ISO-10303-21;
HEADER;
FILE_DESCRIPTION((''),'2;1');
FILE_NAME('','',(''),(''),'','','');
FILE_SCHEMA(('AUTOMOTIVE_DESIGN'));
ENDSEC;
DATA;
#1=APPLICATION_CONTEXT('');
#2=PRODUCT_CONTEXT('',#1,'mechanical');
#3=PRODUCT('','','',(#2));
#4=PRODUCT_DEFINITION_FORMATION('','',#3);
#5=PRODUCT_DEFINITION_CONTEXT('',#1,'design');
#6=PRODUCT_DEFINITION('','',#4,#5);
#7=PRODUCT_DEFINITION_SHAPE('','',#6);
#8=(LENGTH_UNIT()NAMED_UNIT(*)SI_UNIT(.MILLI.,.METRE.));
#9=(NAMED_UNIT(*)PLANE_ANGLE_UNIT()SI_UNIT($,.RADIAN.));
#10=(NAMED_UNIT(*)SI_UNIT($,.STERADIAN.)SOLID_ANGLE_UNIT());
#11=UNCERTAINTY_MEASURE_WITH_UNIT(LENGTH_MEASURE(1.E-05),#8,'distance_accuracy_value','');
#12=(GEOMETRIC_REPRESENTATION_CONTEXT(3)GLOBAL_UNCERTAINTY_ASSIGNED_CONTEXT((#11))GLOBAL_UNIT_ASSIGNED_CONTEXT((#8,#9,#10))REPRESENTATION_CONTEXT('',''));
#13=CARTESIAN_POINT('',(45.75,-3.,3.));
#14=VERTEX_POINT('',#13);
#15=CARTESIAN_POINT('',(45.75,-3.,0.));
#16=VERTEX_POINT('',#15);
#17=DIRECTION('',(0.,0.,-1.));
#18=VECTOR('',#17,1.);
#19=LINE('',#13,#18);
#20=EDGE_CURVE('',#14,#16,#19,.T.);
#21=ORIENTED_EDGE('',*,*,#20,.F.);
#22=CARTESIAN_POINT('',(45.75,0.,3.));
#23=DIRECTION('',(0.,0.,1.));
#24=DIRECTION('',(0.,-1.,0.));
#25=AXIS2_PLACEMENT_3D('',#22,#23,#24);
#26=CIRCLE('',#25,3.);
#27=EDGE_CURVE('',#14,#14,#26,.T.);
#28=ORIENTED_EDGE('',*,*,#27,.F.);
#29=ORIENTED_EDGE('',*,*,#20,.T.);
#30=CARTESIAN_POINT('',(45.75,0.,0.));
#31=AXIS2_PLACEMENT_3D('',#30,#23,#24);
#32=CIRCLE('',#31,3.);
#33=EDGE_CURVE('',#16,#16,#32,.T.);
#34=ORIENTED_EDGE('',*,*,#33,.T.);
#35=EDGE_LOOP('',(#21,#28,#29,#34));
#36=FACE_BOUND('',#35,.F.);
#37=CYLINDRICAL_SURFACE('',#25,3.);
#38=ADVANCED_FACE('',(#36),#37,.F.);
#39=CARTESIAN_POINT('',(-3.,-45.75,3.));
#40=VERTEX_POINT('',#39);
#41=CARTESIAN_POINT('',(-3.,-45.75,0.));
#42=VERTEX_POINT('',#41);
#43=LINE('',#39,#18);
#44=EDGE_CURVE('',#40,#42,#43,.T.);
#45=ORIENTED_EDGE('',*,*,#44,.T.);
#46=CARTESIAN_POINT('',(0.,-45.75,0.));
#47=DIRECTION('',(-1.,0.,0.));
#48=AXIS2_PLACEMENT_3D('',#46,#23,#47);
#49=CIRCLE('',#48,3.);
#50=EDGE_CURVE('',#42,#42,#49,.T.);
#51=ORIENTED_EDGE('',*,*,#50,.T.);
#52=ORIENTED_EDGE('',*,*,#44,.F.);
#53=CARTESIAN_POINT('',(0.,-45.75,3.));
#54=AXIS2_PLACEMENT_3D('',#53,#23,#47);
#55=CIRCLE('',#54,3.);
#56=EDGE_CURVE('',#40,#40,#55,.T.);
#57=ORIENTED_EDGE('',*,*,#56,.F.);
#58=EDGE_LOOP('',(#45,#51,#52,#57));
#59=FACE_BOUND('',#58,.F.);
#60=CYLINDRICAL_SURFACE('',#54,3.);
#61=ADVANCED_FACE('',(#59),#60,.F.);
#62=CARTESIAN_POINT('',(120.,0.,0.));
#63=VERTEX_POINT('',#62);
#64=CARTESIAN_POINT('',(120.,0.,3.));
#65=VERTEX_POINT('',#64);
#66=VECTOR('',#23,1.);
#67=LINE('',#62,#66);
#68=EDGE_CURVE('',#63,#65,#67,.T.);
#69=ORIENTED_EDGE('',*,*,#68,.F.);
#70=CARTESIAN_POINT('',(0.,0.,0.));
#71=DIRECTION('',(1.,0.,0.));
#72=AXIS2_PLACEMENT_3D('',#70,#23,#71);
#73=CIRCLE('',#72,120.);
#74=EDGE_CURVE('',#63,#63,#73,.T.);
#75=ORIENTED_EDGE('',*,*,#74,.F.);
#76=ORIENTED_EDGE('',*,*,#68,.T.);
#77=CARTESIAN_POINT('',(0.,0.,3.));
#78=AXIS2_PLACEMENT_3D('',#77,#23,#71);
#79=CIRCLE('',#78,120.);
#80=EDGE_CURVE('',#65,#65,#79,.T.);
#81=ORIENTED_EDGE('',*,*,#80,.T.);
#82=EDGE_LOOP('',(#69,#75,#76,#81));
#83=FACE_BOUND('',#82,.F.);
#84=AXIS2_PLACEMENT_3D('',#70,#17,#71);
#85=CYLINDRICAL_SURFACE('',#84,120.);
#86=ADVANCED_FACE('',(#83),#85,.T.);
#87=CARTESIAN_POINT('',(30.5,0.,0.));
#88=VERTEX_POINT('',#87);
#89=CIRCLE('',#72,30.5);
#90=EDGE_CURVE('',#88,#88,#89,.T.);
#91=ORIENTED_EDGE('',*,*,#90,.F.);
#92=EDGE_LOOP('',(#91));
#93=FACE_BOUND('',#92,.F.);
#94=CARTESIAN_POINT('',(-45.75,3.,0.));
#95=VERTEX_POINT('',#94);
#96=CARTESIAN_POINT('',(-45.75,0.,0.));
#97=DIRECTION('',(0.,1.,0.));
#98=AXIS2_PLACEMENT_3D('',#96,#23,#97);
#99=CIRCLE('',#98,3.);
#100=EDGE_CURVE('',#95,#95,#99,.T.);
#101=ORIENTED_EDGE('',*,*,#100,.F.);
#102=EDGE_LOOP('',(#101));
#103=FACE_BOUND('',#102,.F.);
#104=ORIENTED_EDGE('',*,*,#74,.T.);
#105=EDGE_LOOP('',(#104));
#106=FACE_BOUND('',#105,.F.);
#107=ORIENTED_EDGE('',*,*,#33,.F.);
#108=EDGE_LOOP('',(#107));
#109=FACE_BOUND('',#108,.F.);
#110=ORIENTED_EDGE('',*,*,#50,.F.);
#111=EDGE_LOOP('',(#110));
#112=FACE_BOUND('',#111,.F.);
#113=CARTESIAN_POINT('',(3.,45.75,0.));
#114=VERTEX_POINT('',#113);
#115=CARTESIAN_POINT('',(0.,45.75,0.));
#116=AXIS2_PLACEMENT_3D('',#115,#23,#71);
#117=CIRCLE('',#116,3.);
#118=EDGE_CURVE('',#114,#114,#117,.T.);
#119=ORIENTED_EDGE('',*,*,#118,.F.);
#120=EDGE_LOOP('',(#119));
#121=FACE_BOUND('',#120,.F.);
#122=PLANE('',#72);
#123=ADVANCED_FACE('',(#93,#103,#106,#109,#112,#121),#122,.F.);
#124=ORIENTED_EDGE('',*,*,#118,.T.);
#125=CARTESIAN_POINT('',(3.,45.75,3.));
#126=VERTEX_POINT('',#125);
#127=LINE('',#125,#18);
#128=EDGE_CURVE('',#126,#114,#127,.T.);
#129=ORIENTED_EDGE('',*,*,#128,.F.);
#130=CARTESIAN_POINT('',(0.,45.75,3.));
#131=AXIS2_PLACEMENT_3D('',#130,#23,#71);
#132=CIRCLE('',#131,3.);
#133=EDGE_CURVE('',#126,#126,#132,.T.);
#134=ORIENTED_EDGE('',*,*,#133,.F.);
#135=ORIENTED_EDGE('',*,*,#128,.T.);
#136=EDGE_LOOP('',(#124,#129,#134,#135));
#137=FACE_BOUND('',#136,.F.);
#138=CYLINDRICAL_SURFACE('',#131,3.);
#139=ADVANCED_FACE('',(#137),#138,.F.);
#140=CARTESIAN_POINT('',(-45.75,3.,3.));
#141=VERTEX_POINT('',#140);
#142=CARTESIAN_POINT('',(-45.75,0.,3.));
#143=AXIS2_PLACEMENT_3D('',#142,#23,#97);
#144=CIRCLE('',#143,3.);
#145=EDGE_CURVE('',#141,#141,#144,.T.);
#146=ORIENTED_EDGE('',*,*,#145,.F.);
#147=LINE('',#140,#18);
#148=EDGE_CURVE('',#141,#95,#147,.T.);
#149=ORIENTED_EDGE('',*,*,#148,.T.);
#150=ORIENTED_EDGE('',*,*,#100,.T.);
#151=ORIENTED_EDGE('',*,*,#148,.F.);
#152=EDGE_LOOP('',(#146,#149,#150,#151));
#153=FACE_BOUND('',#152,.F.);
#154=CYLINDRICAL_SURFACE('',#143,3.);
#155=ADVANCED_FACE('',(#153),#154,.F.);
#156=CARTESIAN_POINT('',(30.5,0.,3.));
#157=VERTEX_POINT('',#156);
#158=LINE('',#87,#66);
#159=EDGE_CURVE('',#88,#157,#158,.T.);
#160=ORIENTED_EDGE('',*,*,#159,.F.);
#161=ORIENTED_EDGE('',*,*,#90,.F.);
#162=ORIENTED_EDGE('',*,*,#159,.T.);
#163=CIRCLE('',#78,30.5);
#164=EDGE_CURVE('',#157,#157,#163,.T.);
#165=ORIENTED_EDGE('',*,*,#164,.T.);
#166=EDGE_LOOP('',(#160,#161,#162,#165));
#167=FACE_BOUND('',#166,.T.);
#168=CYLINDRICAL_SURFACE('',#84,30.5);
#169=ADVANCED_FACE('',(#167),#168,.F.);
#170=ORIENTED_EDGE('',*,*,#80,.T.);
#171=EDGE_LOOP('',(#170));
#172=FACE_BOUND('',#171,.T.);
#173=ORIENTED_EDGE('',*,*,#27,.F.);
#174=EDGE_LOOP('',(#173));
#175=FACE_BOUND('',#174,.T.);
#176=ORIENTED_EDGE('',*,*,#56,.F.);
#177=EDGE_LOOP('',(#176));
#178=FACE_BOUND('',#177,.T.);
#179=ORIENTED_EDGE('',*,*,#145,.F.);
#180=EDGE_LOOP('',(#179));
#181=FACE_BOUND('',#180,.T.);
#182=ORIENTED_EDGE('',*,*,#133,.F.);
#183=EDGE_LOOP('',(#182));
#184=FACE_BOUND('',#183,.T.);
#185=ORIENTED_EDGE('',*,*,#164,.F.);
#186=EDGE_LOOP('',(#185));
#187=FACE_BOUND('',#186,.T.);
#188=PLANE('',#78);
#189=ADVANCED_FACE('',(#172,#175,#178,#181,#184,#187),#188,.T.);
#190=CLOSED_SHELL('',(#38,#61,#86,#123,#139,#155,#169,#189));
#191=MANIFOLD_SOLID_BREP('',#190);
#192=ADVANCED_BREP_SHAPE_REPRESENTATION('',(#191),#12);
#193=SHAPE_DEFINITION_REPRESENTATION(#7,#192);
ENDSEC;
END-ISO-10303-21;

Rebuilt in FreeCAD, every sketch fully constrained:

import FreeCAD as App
import Part
import Sketcher

V = App.Vector
Q = App.Units.Quantity

doc = App.newDocument("Part")
params = doc.addObject("Spreadsheet::Sheet", "Params")
for row, (alias, value) in enumerate([
    ("sketch1_diameter", "240 mm"),
    ("sketch1_diameter2", "61 mm"),
    ("pad1_length", "3 mm"),
    ("sketch2_diameter", "6 mm"),
], start=1):
    params.set(f"A{row}", alias)
    params.set(f"B{row}", "=" + value)
    params.setAlias(f"B{row}", alias)

body = doc.addObject("PartDesign::Body", "Body")

# Sketch on XY plane
sketch1 = doc.addObject("Sketcher::SketchObject", "Sketch")
body.addObject(sketch1)
sketch1.AttachmentSupport = (doc.XY_Plane, [""])
sketch1.MapMode = "FlatFace"
sketch1.addGeometry(Part.Circle(V(0, 0, 0), V(0, 0, 1), 120), False)
sketch1.addGeometry(Part.Circle(V(0, 0, 0), V(0, 0, 1), 30), False)
sketch1.addConstraint(Sketcher.Constraint("Coincident", 0, 3, -1, 1))
sketch1.addConstraint(Sketcher.Constraint("Coincident", 1, 3, -1, 1))
sketch1.addConstraint(Sketcher.Constraint("Diameter", 0, Q("240 mm")))
sketch1.addConstraint(Sketcher.Constraint("Diameter", 1, Q("61 mm")))
sketch1.setExpression("Constraints[2]", "Params.sketch1_diameter")
sketch1.setExpression("Constraints[3]", "Params.sketch1_diameter2")
pad1 = doc.addObject("PartDesign::Pad", "Pad")
body.addObject(pad1)
pad1.Profile = sketch1
pad1.setExpression("Length", "Params.pad1_length")

# Sketch on XY plane
sketch2 = doc.addObject("Sketcher::SketchObject", "Sketch001")
body.addObject(sketch2)
sketch2.AttachmentSupport = (doc.XY_Plane, [""])
sketch2.MapMode = "FlatFace"
sketch2.AttachmentOffset = App.Placement(V(0, 0, 3), App.Rotation())
sketch2.addGeometry(Part.Circle(V(0, 45.8, 0), V(0, 0, 1), 3), False)
sketch2.addConstraint(Sketcher.Constraint("PointOnObject", 0, 3, -2))
sketch2.addConstraint(Sketcher.Constraint("Diameter", 0, Q("6 mm")))
sketch2.addConstraint(Sketcher.Constraint("DistanceY", -1, 1, 0, 3, Q("45.75 mm")))
sketch2.setExpression("Constraints[1]", "Params.sketch2_diameter")
pocket1 = doc.addObject("PartDesign::Pocket", "Pocket")
body.addObject(pocket1)
pocket1.Profile = sketch2
pocket1.Type = "ThroughAll"
doc.recompute()

polarpattern = doc.addObject("PartDesign::PolarPattern", "PolarPattern")
body.addObject(polarpattern)
polarpattern.Originals = [pocket1]
polarpattern.Axis = (doc.Z_Axis, [""])
polarpattern.Angle = 360
polarpattern.Occurrences = 4
body.Tip = polarpattern

doc.recompute()
